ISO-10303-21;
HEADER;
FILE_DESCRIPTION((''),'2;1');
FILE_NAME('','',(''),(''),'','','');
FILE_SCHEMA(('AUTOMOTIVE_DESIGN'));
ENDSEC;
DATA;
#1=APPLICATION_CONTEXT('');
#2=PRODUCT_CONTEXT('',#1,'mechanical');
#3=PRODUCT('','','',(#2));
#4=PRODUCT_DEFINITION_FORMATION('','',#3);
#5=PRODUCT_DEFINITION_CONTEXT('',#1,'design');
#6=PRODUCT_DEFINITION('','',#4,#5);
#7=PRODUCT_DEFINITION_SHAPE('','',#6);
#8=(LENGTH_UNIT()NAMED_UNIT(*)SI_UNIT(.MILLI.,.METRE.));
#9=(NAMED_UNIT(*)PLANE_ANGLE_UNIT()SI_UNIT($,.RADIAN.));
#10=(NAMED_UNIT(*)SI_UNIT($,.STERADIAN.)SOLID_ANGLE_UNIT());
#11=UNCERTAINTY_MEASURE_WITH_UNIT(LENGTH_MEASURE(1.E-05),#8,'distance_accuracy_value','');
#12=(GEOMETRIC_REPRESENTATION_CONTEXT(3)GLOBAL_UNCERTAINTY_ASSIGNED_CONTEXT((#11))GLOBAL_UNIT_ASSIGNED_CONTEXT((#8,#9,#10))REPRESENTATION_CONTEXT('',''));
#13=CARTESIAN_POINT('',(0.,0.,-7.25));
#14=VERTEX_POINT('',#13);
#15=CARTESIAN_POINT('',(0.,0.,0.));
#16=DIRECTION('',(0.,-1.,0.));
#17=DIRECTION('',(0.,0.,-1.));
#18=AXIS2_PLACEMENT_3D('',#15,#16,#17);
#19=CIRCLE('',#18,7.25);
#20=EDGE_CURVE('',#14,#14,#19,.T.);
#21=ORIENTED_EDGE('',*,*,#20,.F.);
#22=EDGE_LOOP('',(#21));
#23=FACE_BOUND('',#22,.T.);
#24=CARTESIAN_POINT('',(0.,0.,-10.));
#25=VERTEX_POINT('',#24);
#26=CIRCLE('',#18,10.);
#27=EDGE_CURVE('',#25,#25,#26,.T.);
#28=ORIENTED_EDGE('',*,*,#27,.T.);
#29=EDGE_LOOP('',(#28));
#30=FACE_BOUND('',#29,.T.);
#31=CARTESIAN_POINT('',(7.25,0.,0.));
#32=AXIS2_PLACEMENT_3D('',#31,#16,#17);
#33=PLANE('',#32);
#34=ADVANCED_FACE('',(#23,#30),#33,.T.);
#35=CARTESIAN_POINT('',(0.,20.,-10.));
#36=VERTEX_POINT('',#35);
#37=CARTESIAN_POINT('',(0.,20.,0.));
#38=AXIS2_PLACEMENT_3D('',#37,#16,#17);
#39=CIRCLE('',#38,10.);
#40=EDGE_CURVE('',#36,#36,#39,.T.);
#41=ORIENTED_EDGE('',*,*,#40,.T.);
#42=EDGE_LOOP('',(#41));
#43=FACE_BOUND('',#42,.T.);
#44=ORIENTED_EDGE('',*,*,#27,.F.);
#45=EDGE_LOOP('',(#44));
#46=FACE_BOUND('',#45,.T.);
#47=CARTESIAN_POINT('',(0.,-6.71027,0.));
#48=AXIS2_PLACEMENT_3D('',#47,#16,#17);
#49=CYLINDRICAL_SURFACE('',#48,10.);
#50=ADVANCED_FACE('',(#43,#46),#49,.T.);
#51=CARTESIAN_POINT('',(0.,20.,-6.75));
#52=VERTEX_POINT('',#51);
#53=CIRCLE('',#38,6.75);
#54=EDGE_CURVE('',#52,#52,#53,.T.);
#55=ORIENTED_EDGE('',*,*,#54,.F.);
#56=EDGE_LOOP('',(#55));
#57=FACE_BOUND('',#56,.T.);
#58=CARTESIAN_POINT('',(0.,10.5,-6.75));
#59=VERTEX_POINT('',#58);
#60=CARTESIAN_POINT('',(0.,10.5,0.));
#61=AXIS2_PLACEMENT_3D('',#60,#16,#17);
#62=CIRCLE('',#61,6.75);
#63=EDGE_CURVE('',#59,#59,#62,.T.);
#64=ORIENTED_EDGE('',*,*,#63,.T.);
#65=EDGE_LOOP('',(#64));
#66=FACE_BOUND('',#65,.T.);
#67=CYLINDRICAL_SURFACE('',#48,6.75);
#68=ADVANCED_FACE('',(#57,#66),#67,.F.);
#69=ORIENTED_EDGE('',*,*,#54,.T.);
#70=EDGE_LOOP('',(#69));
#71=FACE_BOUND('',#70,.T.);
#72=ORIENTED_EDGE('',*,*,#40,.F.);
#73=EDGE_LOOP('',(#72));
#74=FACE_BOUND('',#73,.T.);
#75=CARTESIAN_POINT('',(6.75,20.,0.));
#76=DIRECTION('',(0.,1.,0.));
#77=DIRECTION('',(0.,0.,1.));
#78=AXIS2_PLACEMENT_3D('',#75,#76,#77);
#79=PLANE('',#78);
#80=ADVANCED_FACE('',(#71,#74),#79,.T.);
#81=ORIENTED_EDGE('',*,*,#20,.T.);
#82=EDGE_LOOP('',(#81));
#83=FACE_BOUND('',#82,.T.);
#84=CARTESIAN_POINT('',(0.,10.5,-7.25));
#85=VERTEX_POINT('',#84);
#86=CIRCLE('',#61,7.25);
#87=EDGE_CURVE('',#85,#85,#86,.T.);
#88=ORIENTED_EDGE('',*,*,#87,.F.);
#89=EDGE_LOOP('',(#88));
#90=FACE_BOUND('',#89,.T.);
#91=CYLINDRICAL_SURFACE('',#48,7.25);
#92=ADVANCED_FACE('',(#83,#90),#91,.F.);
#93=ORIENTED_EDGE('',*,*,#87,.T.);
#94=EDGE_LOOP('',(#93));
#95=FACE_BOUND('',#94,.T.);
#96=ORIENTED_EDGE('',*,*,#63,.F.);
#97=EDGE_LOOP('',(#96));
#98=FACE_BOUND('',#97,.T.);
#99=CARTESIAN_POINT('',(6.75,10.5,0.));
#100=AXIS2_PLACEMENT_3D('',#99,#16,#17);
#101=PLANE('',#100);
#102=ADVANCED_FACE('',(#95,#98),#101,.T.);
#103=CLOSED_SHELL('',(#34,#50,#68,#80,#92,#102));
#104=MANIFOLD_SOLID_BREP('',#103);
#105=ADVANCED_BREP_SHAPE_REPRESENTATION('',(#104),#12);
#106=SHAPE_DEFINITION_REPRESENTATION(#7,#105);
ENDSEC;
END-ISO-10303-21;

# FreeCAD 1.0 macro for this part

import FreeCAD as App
import Part
import Sketcher
from FreeCAD import Vector


def add_polygon(sketch, points):
    """Adds a closed chain of lines whose ends are joined by coincident constraints."""
    first, n = sketch.GeometryCount, len(points)
    for a, b in zip(points, points[1:] + points[:1]):
        sketch.addGeometry(Part.LineSegment(App.Vector(*a, 0), App.Vector(*b, 0)), False)
    for i in range(n):
        sketch.addConstraint(Sketcher.Constraint("Coincident", first + i, 2, first + (i + 1) % n, 1))

doc = App.newDocument("Part")
params = doc.addObject("Spreadsheet::Sheet", "Params")
for row, (alias, value) in enumerate([
    ("sketch1_height", "20 mm"),
    ("sketch1_width", "0.5 mm"),
    ("sketch1_height2", "9.5 mm"),
    ("sketch1_width2", "2.75 mm"),
    ("revolution_angle", "360 deg"),
], start=1):
    params.set(f"A{row}", alias)
    params.set(f"B{row}", "=" + value)
    params.setAlias(f"B{row}", alias)

body = doc.addObject("PartDesign::Body", "Body")

# Sketch on XY plane
sketch1 = body.newObject("Sketcher::SketchObject", "Sketch")
sketch1.AttachmentSupport = (doc.getObject("XY_Plane"), [""])
sketch1.MapMode = "FlatFace"
add_polygon(sketch1, [(7.25, 0), (10, 0), (10, 20), (6.75, 20), (6.75, 10.5), (7.25, 10.5)])  # lines 0-5
sketch1.addConstraint([
    Sketcher.Constraint("Horizontal", 0),
    Sketcher.Constraint("Vertical", 1),
    Sketcher.Constraint("Horizontal", 2),
    Sketcher.Constraint("Vertical", 3),
    Sketcher.Constraint("Horizontal", 4),
    Sketcher.Constraint("Vertical", 5),
    Sketcher.Constraint("PointOnObject", 0, 2, -1),
    Sketcher.Constraint("DistanceY", 1, 1, 1, 2, 20.0),
    Sketcher.Constraint("DistanceX", 4, 1, 4, 2, 0.5),
    Sketcher.Constraint("DistanceY", 3, 2, 3, 1, 9.5),
    Sketcher.Constraint("DistanceX", -1, 1, 0, 2, 10.0),
    Sketcher.Constraint("DistanceX", 0, 1, 0, 2, 2.75),
])
sketch1.setExpression("Constraints[13]", "Params.sketch1_height")
sketch1.setExpression("Constraints[14]", "Params.sketch1_width")
sketch1.setExpression("Constraints[15]", "Params.sketch1_height2")
sketch1.setExpression("Constraints[17]", "Params.sketch1_width2")
revolution = body.newObject("PartDesign::Revolution", "Revolution")
revolution.Profile = sketch1
revolution.ReferenceAxis = (sketch1, ["V_Axis"])
revolution.setExpression("Angle", "Params.revolution_angle")

doc.recompute()
